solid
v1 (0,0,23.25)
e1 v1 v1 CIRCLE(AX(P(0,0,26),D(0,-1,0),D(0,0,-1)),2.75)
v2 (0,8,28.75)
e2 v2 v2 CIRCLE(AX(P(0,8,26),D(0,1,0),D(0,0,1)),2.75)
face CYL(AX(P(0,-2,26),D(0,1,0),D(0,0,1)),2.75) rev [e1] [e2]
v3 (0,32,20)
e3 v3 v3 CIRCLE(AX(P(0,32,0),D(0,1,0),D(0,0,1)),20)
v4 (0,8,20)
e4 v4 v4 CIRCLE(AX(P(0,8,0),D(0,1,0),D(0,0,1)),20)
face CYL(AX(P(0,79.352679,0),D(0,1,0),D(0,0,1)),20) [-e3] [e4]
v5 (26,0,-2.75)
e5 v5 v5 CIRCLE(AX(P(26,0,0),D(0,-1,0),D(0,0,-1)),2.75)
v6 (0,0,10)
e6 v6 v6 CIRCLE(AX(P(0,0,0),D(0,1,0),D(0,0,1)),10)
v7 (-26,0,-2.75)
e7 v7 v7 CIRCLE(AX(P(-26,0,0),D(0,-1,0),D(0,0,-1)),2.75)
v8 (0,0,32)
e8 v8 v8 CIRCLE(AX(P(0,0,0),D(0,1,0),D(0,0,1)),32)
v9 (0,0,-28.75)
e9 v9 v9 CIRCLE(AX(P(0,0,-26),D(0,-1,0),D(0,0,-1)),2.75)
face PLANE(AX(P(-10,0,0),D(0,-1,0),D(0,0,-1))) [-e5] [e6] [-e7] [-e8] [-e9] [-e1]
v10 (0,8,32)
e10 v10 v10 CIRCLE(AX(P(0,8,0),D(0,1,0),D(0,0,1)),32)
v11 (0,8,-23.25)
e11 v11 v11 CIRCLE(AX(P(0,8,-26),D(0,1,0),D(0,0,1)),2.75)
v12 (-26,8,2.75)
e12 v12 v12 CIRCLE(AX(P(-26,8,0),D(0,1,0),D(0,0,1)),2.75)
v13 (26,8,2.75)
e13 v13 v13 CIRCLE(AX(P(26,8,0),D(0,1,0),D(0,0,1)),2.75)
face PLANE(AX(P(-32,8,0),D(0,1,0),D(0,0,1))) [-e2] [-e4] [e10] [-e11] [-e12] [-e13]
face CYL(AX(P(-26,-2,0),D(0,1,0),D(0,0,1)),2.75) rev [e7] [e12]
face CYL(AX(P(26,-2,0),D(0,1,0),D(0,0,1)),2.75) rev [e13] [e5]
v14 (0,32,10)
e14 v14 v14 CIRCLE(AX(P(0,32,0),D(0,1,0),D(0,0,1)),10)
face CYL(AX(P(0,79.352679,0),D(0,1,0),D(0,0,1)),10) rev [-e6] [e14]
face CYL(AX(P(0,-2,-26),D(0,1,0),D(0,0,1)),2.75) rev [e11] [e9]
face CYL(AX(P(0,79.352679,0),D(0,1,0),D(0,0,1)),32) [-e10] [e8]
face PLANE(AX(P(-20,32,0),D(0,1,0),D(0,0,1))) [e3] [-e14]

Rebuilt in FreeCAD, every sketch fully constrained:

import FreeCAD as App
import Part
import Sketcher


def add_polygon(sketch, points):
    """Adds a closed chain of lines whose ends are joined by coincident constraints."""
    first, n = sketch.GeometryCount, len(points)
    for a, b in zip(points, points[1:] + points[:1]):
        sketch.addGeometry(Part.LineSegment(App.Vector(*a, 0), App.Vector(*b, 0)), False)
    for i in range(n):
        sketch.addConstraint(Sketcher.Constraint("Coincident", first + i, 2, first + (i + 1) % n, 1))

doc = App.newDocument("Part")
body = doc.addObject("PartDesign::Body", "Body")

# Sketch on XY plane
sketch1 = body.newObject("Sketcher::SketchObject", "Sketch")
sketch1.AttachmentSupport = (doc.getObject("XY_Plane"), [""])
sketch1.MapMode = "FlatFace"
add_polygon(sketch1, [(-32, 0), (-10, 0), (-10, 32), (-20, 32), (-20, 8), (-32, 8)])  # lines 0-5
sketch1.addConstraint([
    Sketcher.Constraint("Horizontal", 0),
    Sketcher.Constraint("Vertical", 1),
    Sketcher.Constraint("Horizontal", 2),
    Sketcher.Constraint("Vertical", 3),
    Sketcher.Constraint("Horizontal", 4),
    Sketcher.Constraint("Vertical", 5),
    Sketcher.Constraint("PointOnObject", 0, 2, -1),
    Sketcher.Constraint("DistanceX", 0, 1, 0, 2, 22.0),
    Sketcher.Constraint("DistanceX", 2, 2, 2, 1, 10.0),
    Sketcher.Constraint("DistanceY", 1, 1, 1, 2, 32.0),
    Sketcher.Constraint("DistanceY", 3, 2, 3, 1, 24.0),
    Sketcher.Constraint("DistanceX", 0, 2, -1, 1, 10.0),
])
revolution = body.newObject("PartDesign::Revolution", "Revolution")
revolution.Profile = sketch1
revolution.ReferenceAxis = (sketch1, ["V_Axis"])
revolution.Angle = 360

# Sketch on XZ plane
sketch2 = body.newObject("Sketcher::SketchObject", "Sketch001")
sketch2.AttachmentSupport = (doc.getObject("XZ_Plane"), [""])
sketch2.MapMode = "FlatFace"
sketch2.AttachmentOffset = App.Placement(App.Vector(0, 0, -8), App.Rotation())
sketch2.addGeometry([
    Part.Circle(App.Vector(0, -26, 0), App.Vector(0, 0, 1), 2.8),
    Part.Circle(App.Vector(26, 0, 0), App.Vector(0, 0, 1), 2.8),
    Part.Circle(App.Vector(0, 26, 0), App.Vector(0, 0, 1), 2.8),
    Part.Circle(App.Vector(-26, 0, 0), App.Vector(0, 0, 1), 2.8),
], False)
sketch2.addConstraint([
    Sketcher.Constraint("Equal", 0, 1),
    Sketcher.Constraint("Equal", 1, 2),
    Sketcher.Constraint("Equal", 2, 3),
    Sketcher.Constraint("Symmetric", 0, 3, 2, 3, -1, 1),
    Sketcher.Constraint("Symmetric", 1, 3, 3, 3, -1, 1),
    Sketcher.Constraint("PointOnObject", 0, 3, -2),
    Sketcher.Constraint("PointOnObject", 1, 3, -1),
    Sketcher.Constraint("Diameter", 0, 5.5),
    Sketcher.Constraint("DistanceY", 0, 3, -1, 1, 26.0),
    Sketcher.Constraint("DistanceX", -1, 1, 1, 3, 26.0),
])
pocket1 = body.newObject("PartDesign::Pocket", "Pocket")
pocket1.Profile = sketch2
pocket1.Length = 10
pocket1.Reversed = True

doc.recompute()
